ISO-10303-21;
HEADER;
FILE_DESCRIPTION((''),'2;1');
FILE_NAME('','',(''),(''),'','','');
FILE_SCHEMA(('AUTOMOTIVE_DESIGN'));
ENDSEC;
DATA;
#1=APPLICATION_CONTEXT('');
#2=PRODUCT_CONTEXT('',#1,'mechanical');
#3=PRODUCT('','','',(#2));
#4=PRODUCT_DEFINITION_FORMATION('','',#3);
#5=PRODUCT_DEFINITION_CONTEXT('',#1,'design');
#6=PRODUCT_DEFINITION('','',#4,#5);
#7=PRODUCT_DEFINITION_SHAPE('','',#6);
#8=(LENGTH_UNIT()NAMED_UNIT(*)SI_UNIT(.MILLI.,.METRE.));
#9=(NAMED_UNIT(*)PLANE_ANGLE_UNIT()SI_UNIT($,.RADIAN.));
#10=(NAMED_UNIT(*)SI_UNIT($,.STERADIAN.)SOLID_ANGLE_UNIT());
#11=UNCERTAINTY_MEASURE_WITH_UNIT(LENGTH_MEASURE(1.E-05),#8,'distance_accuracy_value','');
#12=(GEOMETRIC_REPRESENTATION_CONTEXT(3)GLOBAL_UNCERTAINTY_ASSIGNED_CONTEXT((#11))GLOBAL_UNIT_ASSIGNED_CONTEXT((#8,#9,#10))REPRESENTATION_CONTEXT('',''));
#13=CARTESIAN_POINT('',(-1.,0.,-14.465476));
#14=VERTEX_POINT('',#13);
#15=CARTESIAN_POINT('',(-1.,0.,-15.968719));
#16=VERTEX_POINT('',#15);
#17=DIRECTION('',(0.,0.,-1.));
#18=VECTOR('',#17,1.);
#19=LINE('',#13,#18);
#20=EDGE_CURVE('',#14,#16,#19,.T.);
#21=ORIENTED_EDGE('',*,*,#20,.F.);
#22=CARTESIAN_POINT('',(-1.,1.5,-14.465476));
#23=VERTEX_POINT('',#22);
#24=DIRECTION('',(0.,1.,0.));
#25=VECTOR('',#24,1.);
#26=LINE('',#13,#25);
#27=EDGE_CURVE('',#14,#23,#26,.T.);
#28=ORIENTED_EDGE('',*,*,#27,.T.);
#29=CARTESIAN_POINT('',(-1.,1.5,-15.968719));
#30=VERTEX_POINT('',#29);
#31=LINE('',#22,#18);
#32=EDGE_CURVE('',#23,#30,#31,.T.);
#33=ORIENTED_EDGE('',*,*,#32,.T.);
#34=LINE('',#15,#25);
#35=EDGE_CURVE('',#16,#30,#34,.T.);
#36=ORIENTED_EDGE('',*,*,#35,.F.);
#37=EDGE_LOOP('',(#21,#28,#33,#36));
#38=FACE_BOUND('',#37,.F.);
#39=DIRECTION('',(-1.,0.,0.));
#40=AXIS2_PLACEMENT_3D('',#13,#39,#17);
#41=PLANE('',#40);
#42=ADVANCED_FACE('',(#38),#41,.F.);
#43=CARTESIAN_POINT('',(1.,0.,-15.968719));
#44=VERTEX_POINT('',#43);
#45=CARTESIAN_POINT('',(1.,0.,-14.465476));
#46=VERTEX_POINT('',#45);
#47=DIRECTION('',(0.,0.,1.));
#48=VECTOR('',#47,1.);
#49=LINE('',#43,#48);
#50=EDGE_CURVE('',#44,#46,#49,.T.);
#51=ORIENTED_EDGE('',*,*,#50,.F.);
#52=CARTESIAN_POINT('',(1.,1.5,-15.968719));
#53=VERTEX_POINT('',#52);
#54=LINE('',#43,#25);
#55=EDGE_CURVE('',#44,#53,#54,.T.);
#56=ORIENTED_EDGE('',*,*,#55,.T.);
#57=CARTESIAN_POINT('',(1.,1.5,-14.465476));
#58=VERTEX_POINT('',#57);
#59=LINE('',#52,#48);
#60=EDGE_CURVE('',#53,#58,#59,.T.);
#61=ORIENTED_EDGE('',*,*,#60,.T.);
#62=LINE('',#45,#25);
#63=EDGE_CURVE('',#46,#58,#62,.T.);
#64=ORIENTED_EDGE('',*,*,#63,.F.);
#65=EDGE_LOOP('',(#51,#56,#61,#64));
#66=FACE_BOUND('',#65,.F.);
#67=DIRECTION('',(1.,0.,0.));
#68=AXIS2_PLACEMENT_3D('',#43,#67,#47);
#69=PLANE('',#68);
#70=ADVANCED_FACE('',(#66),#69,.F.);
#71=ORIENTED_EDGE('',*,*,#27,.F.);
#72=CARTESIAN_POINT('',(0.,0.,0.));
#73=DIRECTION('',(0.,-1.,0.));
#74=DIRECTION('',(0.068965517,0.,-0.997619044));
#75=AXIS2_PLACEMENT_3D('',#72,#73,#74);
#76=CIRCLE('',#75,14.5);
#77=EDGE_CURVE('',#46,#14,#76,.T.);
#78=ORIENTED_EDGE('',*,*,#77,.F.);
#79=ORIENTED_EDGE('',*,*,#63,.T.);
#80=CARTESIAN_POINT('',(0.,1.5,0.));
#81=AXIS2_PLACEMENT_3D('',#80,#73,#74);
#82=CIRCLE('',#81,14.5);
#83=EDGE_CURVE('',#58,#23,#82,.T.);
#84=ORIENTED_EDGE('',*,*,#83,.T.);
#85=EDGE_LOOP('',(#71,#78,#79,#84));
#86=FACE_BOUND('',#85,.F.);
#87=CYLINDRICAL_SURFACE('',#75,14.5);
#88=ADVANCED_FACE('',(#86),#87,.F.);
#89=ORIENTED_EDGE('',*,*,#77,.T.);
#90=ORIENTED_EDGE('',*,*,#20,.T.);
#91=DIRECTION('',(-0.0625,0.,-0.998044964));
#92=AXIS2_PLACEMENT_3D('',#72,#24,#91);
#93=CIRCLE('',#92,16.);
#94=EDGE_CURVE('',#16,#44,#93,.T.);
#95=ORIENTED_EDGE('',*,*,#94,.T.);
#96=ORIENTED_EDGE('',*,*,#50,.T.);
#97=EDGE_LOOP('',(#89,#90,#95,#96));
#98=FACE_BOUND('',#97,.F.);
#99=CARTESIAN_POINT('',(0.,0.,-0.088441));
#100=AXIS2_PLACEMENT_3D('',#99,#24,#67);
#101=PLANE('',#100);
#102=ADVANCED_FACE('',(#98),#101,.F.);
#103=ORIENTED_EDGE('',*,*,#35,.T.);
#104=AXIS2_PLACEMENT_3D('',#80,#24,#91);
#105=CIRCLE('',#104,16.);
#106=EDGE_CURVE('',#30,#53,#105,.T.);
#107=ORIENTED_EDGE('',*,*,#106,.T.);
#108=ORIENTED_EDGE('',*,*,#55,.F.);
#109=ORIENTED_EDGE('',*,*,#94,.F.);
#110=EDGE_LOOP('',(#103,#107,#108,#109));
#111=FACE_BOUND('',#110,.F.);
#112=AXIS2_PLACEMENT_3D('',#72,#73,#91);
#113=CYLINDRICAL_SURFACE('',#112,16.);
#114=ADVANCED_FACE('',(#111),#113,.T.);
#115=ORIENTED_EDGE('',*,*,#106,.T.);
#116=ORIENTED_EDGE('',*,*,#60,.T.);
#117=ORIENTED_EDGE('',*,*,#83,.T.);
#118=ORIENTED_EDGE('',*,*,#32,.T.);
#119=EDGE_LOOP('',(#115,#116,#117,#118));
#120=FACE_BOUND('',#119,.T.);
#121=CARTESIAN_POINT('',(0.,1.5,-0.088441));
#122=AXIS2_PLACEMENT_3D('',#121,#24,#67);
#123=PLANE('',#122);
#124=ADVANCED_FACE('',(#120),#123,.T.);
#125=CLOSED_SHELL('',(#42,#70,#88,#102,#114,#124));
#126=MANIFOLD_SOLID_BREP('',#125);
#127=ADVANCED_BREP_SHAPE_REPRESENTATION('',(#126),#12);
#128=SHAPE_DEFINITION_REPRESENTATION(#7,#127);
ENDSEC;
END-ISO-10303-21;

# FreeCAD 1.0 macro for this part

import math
import FreeCAD as App
import Part
import Sketcher
from FreeCAD import Vector
Q = App.Units.Quantity

doc = App.newDocument("Part")
body = doc.addObject("PartDesign::Body", "Body")

sketch1 = body.newObject("Sketcher::SketchObject", "Sketch")
sketch1.AttachmentSupport = (doc.getObject("XZ_Plane"), [""])
sketch1.MapMode = "FlatFace"
sketch1.addGeometry([
    Part.LineSegment(Vector(-1, -14.5, 0), Vector(-1, -16, 0)),
    Part.ArcOfCircle(Part.Circle(Vector(0, 0, 0), Vector(0, 0, 1), 16), math.radians(-86), math.radians(266)),
    Part.LineSegment(Vector(1, -16, 0), Vector(1, -14.5, 0)),
    Part.ArcOfCircle(Part.Circle(Vector(0, 0, 0), Vector(0, 0, 1), 14.5), math.radians(-86), math.radians(266)),
], False)
sketch1.addConstraint([
    Sketcher.Constraint("Coincident", 0, 2, 1, 2),
    Sketcher.Constraint("Coincident", 1, 1, 2, 1),
    Sketcher.Constraint("Coincident", 2, 2, 3, 1),
    Sketcher.Constraint("Coincident", 3, 2, 0, 1),
    Sketcher.Constraint("Vertical", 0),
    Sketcher.Constraint("Vertical", 2),
    Sketcher.Constraint("Coincident", 1, 3, -1, 1),
    Sketcher.Constraint("Coincident", 3, 3, -1, 1),
    Sketcher.Constraint("Horizontal", 0, 2, 1, 1),
    Sketcher.Constraint("Radius", 1, Q("16 mm")),
    Sketcher.Constraint("Radius", 3, Q("14.5 mm")),
    Sketcher.Constraint("DistanceX", 0, 2, -1, 1, Q("1 mm")),
])
pad1 = body.newObject("PartDesign::Pad", "Pad")
pad1.Profile = sketch1
pad1.Length = 1.5
pad1.Reversed = True

doc.recompute()
